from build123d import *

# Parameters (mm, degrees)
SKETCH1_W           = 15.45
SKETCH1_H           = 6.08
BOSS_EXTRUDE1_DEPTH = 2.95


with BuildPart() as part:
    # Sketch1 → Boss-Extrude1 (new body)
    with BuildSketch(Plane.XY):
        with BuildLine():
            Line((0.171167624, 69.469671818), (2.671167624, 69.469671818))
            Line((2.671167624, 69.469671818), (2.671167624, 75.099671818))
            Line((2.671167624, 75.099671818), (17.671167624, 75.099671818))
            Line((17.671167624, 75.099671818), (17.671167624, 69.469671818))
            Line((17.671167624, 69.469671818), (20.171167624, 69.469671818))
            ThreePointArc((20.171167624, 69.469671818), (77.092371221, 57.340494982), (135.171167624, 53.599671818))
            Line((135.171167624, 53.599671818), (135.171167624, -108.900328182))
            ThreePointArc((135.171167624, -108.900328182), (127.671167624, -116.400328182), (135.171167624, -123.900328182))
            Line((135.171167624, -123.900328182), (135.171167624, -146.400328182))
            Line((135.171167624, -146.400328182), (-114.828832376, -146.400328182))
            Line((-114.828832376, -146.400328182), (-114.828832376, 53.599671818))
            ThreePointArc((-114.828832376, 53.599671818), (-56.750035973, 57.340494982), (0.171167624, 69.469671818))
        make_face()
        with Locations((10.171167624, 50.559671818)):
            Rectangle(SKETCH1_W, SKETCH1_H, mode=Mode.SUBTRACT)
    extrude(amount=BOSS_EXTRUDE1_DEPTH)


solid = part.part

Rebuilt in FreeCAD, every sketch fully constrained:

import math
import FreeCAD as App
import Part
import Sketcher
from FreeCAD import Vector
Q = App.Units.Quantity


def add_polygon(sketch, points):
    """Adds a closed chain of lines whose ends are joined by coincident constraints."""
    first, n = sketch.GeometryCount, len(points)
    for a, b in zip(points, points[1:] + points[:1]):
        sketch.addGeometry(Part.LineSegment(App.Vector(*a, 0), App.Vector(*b, 0)), False)
    for i in range(n):
        sketch.addConstraint(Sketcher.Constraint("Coincident", first + i, 2, first + (i + 1) % n, 1))

doc = App.newDocument("Part")
body = doc.addObject("PartDesign::Body", "Body")

sketch1 = body.newObject("Sketcher::SketchObject", "Sketch")
sketch1.AttachmentSupport = (doc.getObject("XY_Plane"), [""])
sketch1.MapMode = "FlatFace"
sketch1.addGeometry(Part.LineSegment(Vector(2.7, 69.5, 0), Vector(0.2, 69.5, 0)), False)
sketch1.addGeometry(Part.ArcOfCircle(Part.Circle(Vector(-111.4, 453.6, 0), Vector(0, 0, 1), 400), math.radians(-90.49), math.radians(-73.8)), False)
sketch1.addGeometry(Part.LineSegment(Vector(-114.8, 53.6, 0), Vector(-114.8, -146.4, 0)), False)
sketch1.addGeometry(Part.LineSegment(Vector(-114.8, -146.4, 0), Vector(135.2, -146.4, 0)), False)
sketch1.addGeometry(Part.LineSegment(Vector(135.2, -146.4, 0), Vector(135.2, -123.9, 0)), False)
sketch1.addGeometry(Part.ArcOfCircle(Part.Circle(Vector(135.2, -116.4, 0), Vector(0, 0, 1), 7.5), math.radians(90), math.radians(270)), False)
sketch1.addGeometry(Part.LineSegment(Vector(135.2, -108.9, 0), Vector(135.2, 53.6, 0)), False)
sketch1.addGeometry(Part.ArcOfCircle(Part.Circle(Vector(131.8, 453.6, 0), Vector(0, 0, 1), 400), math.radians(-106.2), math.radians(-89.51)), False)
sketch1.addGeometry(Part.LineSegment(Vector(20.2, 69.5, 0), Vector(17.7, 69.5, 0)), False)
sketch1.addGeometry(Part.LineSegment(Vector(17.7, 69.5, 0), Vector(17.7, 75.1, 0)), False)
sketch1.addGeometry(Part.LineSegment(Vector(17.7, 75.1, 0), Vector(2.7, 75.1, 0)), False)
sketch1.addGeometry(Part.LineSegment(Vector(2.7, 75.1, 0), Vector(2.7, 69.5, 0)), False)
add_polygon(sketch1, [(2.4, 47.5), (2.4, 53.6), (17.9, 53.6), (17.9, 47.5)])
sketch1.addConstraint(Sketcher.Constraint("Coincident", 0, 2, 1, 2))
sketch1.addConstraint(Sketcher.Constraint("Coincident", 1, 1, 2, 1))
sketch1.addConstraint(Sketcher.Constraint("Coincident", 2, 2, 3, 1))
sketch1.addConstraint(Sketcher.Constraint("Coincident", 3, 2, 4, 1))
sketch1.addConstraint(Sketcher.Constraint("Coincident", 4, 2, 5, 2))
sketch1.addConstraint(Sketcher.Constraint("Coincident", 5, 1, 6, 1))
sketch1.addConstraint(Sketcher.Constraint("Coincident", 6, 2, 7, 2))
sketch1.addConstraint(Sketcher.Constraint("Coincident", 7, 1, 8, 1))
sketch1.addConstraint(Sketcher.Constraint("Coincident", 8, 2, 9, 1))
sketch1.addConstraint(Sketcher.Constraint("Coincident", 9, 2, 10, 1))
sketch1.addConstraint(Sketcher.Constraint("Coincident", 10, 2, 11, 1))
sketch1.addConstraint(Sketcher.Constraint("Coincident", 11, 2, 0, 1))
sketch1.addConstraint(Sketcher.Constraint("Horizontal", 0))
sketch1.addConstraint(Sketcher.Constraint("Vertical", 2))
sketch1.addConstraint(Sketcher.Constraint("Horizontal", 3))
sketch1.addConstraint(Sketcher.Constraint("Vertical", 4))
sketch1.addConstraint(Sketcher.Constraint("Vertical", 6))
sketch1.addConstraint(Sketcher.Constraint("Horizontal", 8))
sketch1.addConstraint(Sketcher.Constraint("Vertical", 9))
sketch1.addConstraint(Sketcher.Constraint("Horizontal", 10))
sketch1.addConstraint(Sketcher.Constraint("Vertical", 11))
sketch1.addConstraint(Sketcher.Constraint("Vertical", 12))
sketch1.addConstraint(Sketcher.Constraint("Horizontal", 13))
sketch1.addConstraint(Sketcher.Constraint("Vertical", 14))
sketch1.addConstraint(Sketcher.Constraint("Horizontal", 15))
sketch1.addConstraint(Sketcher.Constraint("Equal", 1, 7))
sketch1.addConstraint(Sketcher.Constraint("Horizontal", 1, 3, 7, 3))
sketch1.addConstraint(Sketcher.Constraint("Horizontal", 1, 1, 6, 2))
sketch1.addConstraint(Sketcher.Constraint("Horizontal", 0, 2, 7, 1))
sketch1.addConstraint(Sketcher.Constraint("Horizontal", 6, 2, 12, 2))
sketch1.addConstraint(Sketcher.Constraint("Vertical", 5, 3, 3, 2))
sketch1.addConstraint(Sketcher.Constraint("Vertical", 4, 2, 5, 1))
sketch1.addConstraint(Sketcher.Constraint("Equal", 0, 8))
sketch1.addConstraint(Sketcher.Constraint("Radius", 1, Q("400 mm")))
sketch1.addConstraint(Sketcher.Constraint("Radius", 5, Q("7.5 mm")))
sketch1.addConstraint(Sketcher.Constraint("DistanceX", 3, 1, 3, 2, Q("250 mm")))
sketch1.addConstraint(Sketcher.Constraint("DistanceX", 10, 2, 10, 1, Q("15 mm")))
sketch1.addConstraint(Sketcher.Constraint("DistanceY", 2, 2, 2, 1, Q("200 mm")))
sketch1.addConstraint(Sketcher.Constraint("DistanceX", 0, 2, 0, 1, Q("2.5 mm")))
sketch1.addConstraint(Sketcher.Constraint("DistanceY", 4, 1, 4, 2, Q("22.5 mm")))
sketch1.addConstraint(Sketcher.Constraint("DistanceX", 13, 1, 13, 2, Q("15.45 mm")))
sketch1.addConstraint(Sketcher.Constraint("DistanceY", 9, 1, 9, 2, Q("5.63 mm")))
sketch1.addConstraint(Sketcher.Constraint("DistanceY", 12, 1, 12, 2, Q("6.08 mm")))
sketch1.addConstraint(Sketcher.Constraint("DistanceY", 6, 2, 9, 2, Q("21.5 mm")))
sketch1.addConstraint(Sketcher.Constraint("DistanceX", 12, 2, 11, 2, Q("0.225 mm")))
sketch1.addConstraint(Sketcher.Constraint("DistanceX", 1, 3, -1, 1, Q("111.431812 mm")))
sketch1.addConstraint(Sketcher.Constraint("DistanceY", 5, 3, -1, 1, Q("116.400328 mm")))
pad1 = body.newObject("PartDesign::Pad", "Pad")
pad1.Profile = sketch1
pad1.Length = 2.95

doc.recompute()
